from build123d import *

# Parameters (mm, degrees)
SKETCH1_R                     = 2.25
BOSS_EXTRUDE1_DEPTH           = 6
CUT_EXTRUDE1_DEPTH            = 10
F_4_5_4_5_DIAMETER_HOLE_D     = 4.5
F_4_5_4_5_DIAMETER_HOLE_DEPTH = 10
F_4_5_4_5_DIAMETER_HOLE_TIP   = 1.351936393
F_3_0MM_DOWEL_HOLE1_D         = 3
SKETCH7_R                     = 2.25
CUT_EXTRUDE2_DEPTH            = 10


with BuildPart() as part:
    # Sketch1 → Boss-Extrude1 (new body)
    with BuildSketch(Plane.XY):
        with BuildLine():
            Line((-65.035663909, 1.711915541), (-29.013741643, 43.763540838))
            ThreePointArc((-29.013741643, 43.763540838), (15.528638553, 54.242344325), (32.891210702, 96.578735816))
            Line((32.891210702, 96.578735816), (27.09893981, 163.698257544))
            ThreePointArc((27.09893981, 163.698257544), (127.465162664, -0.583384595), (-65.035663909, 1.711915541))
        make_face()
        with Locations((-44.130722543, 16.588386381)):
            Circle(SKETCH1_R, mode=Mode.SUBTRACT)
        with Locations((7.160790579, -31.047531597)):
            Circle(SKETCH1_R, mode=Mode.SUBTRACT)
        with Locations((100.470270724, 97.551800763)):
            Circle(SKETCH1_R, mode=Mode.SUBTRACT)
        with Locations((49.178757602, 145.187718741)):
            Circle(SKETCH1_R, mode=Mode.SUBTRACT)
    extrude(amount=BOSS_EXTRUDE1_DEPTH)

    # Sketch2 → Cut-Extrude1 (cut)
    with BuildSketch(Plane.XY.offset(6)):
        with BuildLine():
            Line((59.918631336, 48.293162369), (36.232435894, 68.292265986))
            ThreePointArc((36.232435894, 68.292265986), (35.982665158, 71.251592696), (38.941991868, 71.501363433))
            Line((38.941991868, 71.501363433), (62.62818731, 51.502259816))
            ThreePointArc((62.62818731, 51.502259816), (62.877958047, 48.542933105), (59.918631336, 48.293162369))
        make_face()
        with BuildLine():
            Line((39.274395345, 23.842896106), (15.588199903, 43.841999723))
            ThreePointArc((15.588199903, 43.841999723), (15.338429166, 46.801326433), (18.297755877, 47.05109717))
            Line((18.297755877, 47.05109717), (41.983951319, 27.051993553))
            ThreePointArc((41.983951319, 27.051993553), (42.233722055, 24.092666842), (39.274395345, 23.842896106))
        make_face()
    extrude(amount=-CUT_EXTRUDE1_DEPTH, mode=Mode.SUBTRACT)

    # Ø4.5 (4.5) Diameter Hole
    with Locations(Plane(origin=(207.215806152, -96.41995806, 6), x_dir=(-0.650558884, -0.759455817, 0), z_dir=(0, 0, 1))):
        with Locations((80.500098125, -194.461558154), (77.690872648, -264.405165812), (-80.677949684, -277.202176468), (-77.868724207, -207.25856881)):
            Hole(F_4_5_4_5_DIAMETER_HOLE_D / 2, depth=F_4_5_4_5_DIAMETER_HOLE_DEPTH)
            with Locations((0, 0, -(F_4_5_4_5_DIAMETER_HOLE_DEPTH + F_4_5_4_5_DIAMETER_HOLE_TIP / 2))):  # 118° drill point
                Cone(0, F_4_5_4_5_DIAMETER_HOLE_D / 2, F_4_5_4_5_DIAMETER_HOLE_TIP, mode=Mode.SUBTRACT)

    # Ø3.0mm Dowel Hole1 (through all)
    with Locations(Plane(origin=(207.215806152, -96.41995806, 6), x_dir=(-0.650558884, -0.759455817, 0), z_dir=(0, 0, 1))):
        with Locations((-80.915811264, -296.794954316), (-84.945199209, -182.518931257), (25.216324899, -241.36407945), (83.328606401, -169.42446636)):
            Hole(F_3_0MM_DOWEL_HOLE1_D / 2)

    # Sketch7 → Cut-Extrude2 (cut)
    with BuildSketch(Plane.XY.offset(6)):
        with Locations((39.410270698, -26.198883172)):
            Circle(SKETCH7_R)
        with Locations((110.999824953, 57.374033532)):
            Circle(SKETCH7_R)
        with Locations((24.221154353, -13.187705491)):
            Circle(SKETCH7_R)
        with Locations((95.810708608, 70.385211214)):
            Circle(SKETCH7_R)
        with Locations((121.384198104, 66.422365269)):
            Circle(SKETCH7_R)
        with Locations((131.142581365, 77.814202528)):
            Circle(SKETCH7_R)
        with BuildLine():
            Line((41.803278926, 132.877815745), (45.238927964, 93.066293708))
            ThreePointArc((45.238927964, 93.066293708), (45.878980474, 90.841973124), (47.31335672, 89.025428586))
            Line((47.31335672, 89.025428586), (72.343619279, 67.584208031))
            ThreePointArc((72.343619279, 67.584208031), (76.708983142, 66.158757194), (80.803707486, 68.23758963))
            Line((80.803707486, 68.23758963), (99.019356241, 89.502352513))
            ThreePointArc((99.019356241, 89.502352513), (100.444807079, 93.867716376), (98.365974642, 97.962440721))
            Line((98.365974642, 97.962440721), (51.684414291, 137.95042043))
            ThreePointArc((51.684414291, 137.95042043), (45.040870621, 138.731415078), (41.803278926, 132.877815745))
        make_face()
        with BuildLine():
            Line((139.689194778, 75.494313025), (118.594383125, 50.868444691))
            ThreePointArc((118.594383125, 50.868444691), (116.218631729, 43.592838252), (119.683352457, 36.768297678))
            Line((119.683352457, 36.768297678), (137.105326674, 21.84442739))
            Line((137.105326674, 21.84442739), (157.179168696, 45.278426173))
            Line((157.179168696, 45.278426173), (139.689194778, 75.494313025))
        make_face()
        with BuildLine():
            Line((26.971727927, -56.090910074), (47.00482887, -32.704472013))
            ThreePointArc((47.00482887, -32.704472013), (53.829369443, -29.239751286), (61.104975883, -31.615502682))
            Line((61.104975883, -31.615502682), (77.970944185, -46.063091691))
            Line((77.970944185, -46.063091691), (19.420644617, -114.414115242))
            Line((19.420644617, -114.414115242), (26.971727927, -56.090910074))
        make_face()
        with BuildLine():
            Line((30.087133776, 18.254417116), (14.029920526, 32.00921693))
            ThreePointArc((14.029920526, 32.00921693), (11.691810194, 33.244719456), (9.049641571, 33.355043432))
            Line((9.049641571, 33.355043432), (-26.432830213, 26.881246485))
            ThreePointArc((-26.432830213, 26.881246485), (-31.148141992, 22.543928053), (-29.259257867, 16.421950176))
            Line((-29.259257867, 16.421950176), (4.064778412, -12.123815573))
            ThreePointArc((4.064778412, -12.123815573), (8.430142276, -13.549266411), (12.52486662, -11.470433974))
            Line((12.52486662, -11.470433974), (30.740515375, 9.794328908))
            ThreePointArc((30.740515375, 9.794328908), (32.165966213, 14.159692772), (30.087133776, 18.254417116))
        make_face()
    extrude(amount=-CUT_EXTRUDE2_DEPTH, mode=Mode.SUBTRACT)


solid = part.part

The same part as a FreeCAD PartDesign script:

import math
import FreeCAD as App
import Part
import Sketcher
Q = App.Units.Quantity

doc = App.newDocument("Part")
body = doc.addObject("PartDesign::Body", "Body")

sketch1 = body.newObject("Sketcher::SketchObject", "Sketch")
sketch1.AttachmentSupport = (doc.getObject("XY_Plane"), [""])
sketch1.MapMode = "FlatFace"
sketch1.addGeometry(Part.LineSegment(App.Vector(-29, 43.8, 0), App.Vector(-65, 1.7, 0)), False)
sketch1.addGeometry(Part.ArcOfCircle(Part.Circle(App.Vector(31.8, 53.8, 0), App.Vector(0, 0, 1), 110), math.radians(-152), math.radians(92)), False)
sketch1.addGeometry(Part.LineSegment(App.Vector(27.1, 163.7, 0), App.Vector(32.9, 96.6, 0)), False)
sketch1.addGeometry(Part.ArcOfCircle(Part.Circle(App.Vector(-16.9, 92.3, 0), App.Vector(0, 0, 1), 50), math.radians(-104), math.radians(5)), False)
sketch1.addGeometry(Part.Circle(App.Vector(7.2, -31, 0), App.Vector(0, 0, 1), 2.2), False)
sketch1.addGeometry(Part.Circle(App.Vector(-44.1, 16.6, 0), App.Vector(0, 0, 1), 2.2), False)
sketch1.addGeometry(Part.Circle(App.Vector(100.5, 97.6, 0), App.Vector(0, 0, 1), 2.2), False)
sketch1.addGeometry(Part.Circle(App.Vector(49.2, 145.2, 0), App.Vector(0, 0, 1), 2.2), False)
sketch1.addConstraint(Sketcher.Constraint("Coincident", 0, 2, 1, 1))
sketch1.addConstraint(Sketcher.Constraint("Coincident", 1, 2, 2, 1))
sketch1.addConstraint(Sketcher.Constraint("Tangent", 2, 2, 3, 2))
sketch1.addConstraint(Sketcher.Constraint("Coincident", 3, 1, 0, 1))
sketch1.addConstraint(Sketcher.Constraint("Equal", 4, 5))
sketch1.addConstraint(Sketcher.Constraint("Equal", 5, 6))
sketch1.addConstraint(Sketcher.Constraint("Equal", 6, 7))
sketch1.addConstraint(Sketcher.Constraint("Radius", 1, Q("110 mm")))
sketch1.addConstraint(Sketcher.Constraint("Radius", 3, Q("50 mm")))
sketch1.addConstraint(Sketcher.Constraint("Diameter", 4, Q("4.5 mm")))
sketch1.addConstraint(Sketcher.Constraint("DistanceY", -1, 1, 6, 3, Q("97.551801 mm")))
sketch1.addConstraint(Sketcher.Constraint("DistanceY", 5, 3, 1, 3, Q("37.212501 mm")))
sketch1.addConstraint(Sketcher.Constraint("DistanceX", 3, 1, 3, 3, Q("12.090102 mm")))
sketch1.addConstraint(Sketcher.Constraint("Distance", 2, Q("67.368988 mm")))
sketch1.addConstraint(Sketcher.Constraint("DistanceX", -1, 1, 1, 3, Q("31.849521 mm")))
sketch1.addConstraint(Sketcher.Constraint("DistanceX", 3, 3, -1, 1, Q("16.92364 mm")))
sketch1.addConstraint(Sketcher.Constraint("DistanceY", -1, 1, 3, 3, Q("92.279821 mm")))
sketch1.addConstraint(Sketcher.Constraint("DistanceX", -1, 1, 4, 3, Q("7.160791 mm")))
sketch1.addConstraint(Sketcher.Constraint("DistanceY", 4, 3, -1, 1, Q("31.047532 mm")))
sketch1.addConstraint(Sketcher.Constraint("DistanceX", -1, 1, 6, 3, Q("100.470271 mm")))
sketch1.addConstraint(Sketcher.Constraint("DistanceY", -1, 1, 7, 3, Q("145.187719 mm")))
sketch1.addConstraint(Sketcher.Constraint("DistanceX", -1, 1, 1, 2, Q("27.09894 mm")))
sketch1.addConstraint(Sketcher.Constraint("DistanceX", 5, 3, 7, 3, Q("93.30948 mm")))
sketch1.addConstraint(Sketcher.Constraint("DistanceX", 0, 2, 5, 3, Q("20.904941 mm")))
sketch1.addConstraint(Sketcher.Constraint("DistanceY", 0, 2, 5, 3, Q("14.876471 mm")))
pad1 = body.newObject("PartDesign::Pad", "Pad")
pad1.Profile = sketch1
pad1.Length = 6

sketch2 = body.newObject("Sketcher::SketchObject", "Sketch001")
sketch2.AttachmentSupport = (doc.getObject("XY_Plane"), [""])
sketch2.MapMode = "FlatFace"
sketch2.AttachmentOffset = App.Placement(App.Vector(0, 0, 6), App.Rotation())
sketch2.addGeometry(Part.LineSegment(App.Vector(36.2, 68.3, 0), App.Vector(59.9, 48.3, 0)), False)
sketch2.addGeometry(Part.ArcOfCircle(Part.Circle(App.Vector(61.3, 49.9, 0), App.Vector(0, 0, 1), 2.1), math.radians(-130), math.radians(50)), False)
sketch2.addGeometry(Part.LineSegment(App.Vector(62.6, 51.5, 0), App.Vector(38.9, 71.5, 0)), False)
sketch2.addGeometry(Part.ArcOfCircle(Part.Circle(App.Vector(37.6, 69.9, 0), App.Vector(0, 0, 1), 2.1), math.radians(50), math.radians(230)), False)
sketch2.addGeometry(Part.LineSegment(App.Vector(15.6, 43.8, 0), App.Vector(39.3, 23.8, 0)), False)
sketch2.addGeometry(Part.ArcOfCircle(Part.Circle(App.Vector(40.6, 25.4, 0), App.Vector(0, 0, 1), 2.1), math.radians(-130), math.radians(50)), False)
sketch2.addGeometry(Part.LineSegment(App.Vector(42, 27.1, 0), App.Vector(18.3, 47.1, 0)), False)
sketch2.addGeometry(Part.ArcOfCircle(Part.Circle(App.Vector(16.9, 45.4, 0), App.Vector(0, 0, 1), 2.1), math.radians(50), math.radians(230)), False)
sketch2.addConstraint(Sketcher.Constraint("Tangent", 0, 2, 1, 1))
sketch2.addConstraint(Sketcher.Constraint("Tangent", 1, 2, 2, 1))
sketch2.addConstraint(Sketcher.Constraint("Tangent", 2, 2, 3, 1))
sketch2.addConstraint(Sketcher.Constraint("Tangent", 3, 2, 0, 1))
sketch2.addConstraint(Sketcher.Constraint("Tangent", 4, 2, 5, 1))
sketch2.addConstraint(Sketcher.Constraint("Tangent", 5, 2, 6, 1))
sketch2.addConstraint(Sketcher.Constraint("Tangent", 6, 2, 7, 1))
sketch2.addConstraint(Sketcher.Constraint("Tangent", 7, 2, 4, 1))
sketch2.addConstraint(Sketcher.Constraint("Equal", 1, 3))
sketch2.addConstraint(Sketcher.Constraint("Equal", 3, 5))
sketch2.addConstraint(Sketcher.Constraint("Equal", 5, 7))
sketch2.addConstraint(Sketcher.Constraint("Parallel", 2, 4))
sketch2.addConstraint(Sketcher.Constraint("Equal", 2, 4))
sketch2.addConstraint(Sketcher.Constraint("Radius", 1, Q("2.1 mm")))
sketch2.addConstraint(Sketcher.Constraint("Distance", 0, Q("31 mm")))
sketch2.addConstraint(Sketcher.Constraint("DistanceY", -1, 1, 7, 2, Q("43.842 mm")))
sketch2.addConstraint(Sketcher.Constraint("DistanceX", -1, 1, 7, 2, Q("15.5882 mm")))
sketch2.addConstraint(Sketcher.Constraint("DistanceY", 0, 2, 2, 2, Q("23.208201 mm")))
sketch2.addConstraint(Sketcher.Constraint("DistanceX", -1, 1, 1, 3, Q("61.273409 mm")))
sketch2.addConstraint(Sketcher.Constraint("DistanceY", -1, 1, 1, 3, Q("49.897711 mm")))
pocket1 = body.newObject("PartDesign::Pocket", "Pocket")
pocket1.Profile = sketch2
pocket1.Length = 10

sketch3 = body.newObject("Sketcher::SketchObject", "Sketch002")
sketch3.AttachmentSupport = (doc.getObject("XY_Plane"), [""])
sketch3.MapMode = "FlatFace"
sketch3.AttachmentOffset = App.Placement(App.Vector(0, 0, 6), App.Rotation())
sketch3.addGeometry(Part.Circle(App.Vector(7.2, -31, 0), App.Vector(0, 0, 1), 2.2), False)
sketch3.addGeometry(Part.Circle(App.Vector(-44.1, 16.6, 0), App.Vector(0, 0, 1), 2.2), False)
sketch3.addGeometry(Part.Circle(App.Vector(49.2, 145.2, 0), App.Vector(0, 0, 1), 2.2), False)
sketch3.addGeometry(Part.Circle(App.Vector(100.5, 97.6, 0), App.Vector(0, 0, 1), 2.2), False)
sketch3.addConstraint(Sketcher.Constraint("Equal", 0, 1))
sketch3.addConstraint(Sketcher.Constraint("Equal", 1, 2))
sketch3.addConstraint(Sketcher.Constraint("Equal", 2, 3))
sketch3.addConstraint(Sketcher.Constraint("Diameter", 0, Q("4.5 mm")))
sketch3.addConstraint(Sketcher.Constraint("DistanceY", -1, 1, 3, 3, Q("97.551801 mm")))
sketch3.addConstraint(Sketcher.Constraint("DistanceX", -1, 1, 0, 3, Q("7.160791 mm")))
sketch3.addConstraint(Sketcher.Constraint("DistanceY", 0, 3, -1, 1, Q("31.047532 mm")))
sketch3.addConstraint(Sketcher.Constraint("DistanceY", -1, 1, 2, 3, Q("145.187719 mm")))
sketch3.addConstraint(Sketcher.Constraint("DistanceX", -1, 1, 3, 3, Q("100.470271 mm")))
sketch3.addConstraint(Sketcher.Constraint("DistanceX", 1, 3, 2, 3, Q("93.30948 mm")))
sketch3.addConstraint(Sketcher.Constraint("DistanceX", 1, 3, -1, 1, Q("44.130723 mm")))
sketch3.addConstraint(Sketcher.Constraint("DistanceY", -1, 1, 1, 3, Q("16.588386 mm")))
doc.recompute()
hole = body.newObject("PartDesign::Hole", "Hole")
hole.Profile = sketch3
hole.ThreadType = "None"
hole.Diameter = 4.5
hole.DepthType = "Dimension"
hole.Depth = 10
hole.DrillPoint = "Angled"
hole.DrillPointAngle = 118

sketch4 = body.newObject("Sketcher::SketchObject", "Sketch003")
sketch4.AttachmentSupport = (doc.getObject("XY_Plane"), [""])
sketch4.MapMode = "FlatFace"
sketch4.AttachmentOffset = App.Placement(App.Vector(0, 0, 6), App.Rotation())
sketch4.addGeometry(Part.Circle(App.Vector(34.5, 158.1, 0), App.Vector(0, 0, 1), 1.5), False)
sketch4.addGeometry(Part.Circle(App.Vector(123.9, 86.8, 0), App.Vector(0, 0, 1), 1.5), False)
sketch4.addGeometry(Part.Circle(App.Vector(7.5, 41.5, 0), App.Vector(0, 0, 1), 1.5), False)
sketch4.addGeometry(Part.Circle(App.Vector(24.3, -49.5, 0), App.Vector(0, 0, 1), 1.5), False)
sketch4.addConstraint(Sketcher.Constraint("Equal", 0, 1))
sketch4.addConstraint(Sketcher.Constraint("Equal", 1, 2))
sketch4.addConstraint(Sketcher.Constraint("Equal", 2, 3))
sketch4.addConstraint(Sketcher.Constraint("Diameter", 0, Q("3 mm")))
sketch4.addConstraint(Sketcher.Constraint("DistanceX", -1, 1, 0, 3, Q("34.453651 mm")))
sketch4.addConstraint(Sketcher.Constraint("DistanceY", -1, 1, 0, 3, Q("158.11462 mm")))
sketch4.addConstraint(Sketcher.Constraint("DistanceY", -1, 1, 1, 3, Q("86.83148 mm")))
sketch4.addConstraint(Sketcher.Constraint("DistanceY", 3, 3, -1, 1, Q("49.483761 mm")))
sketch4.addConstraint(Sketcher.Constraint("DistanceX", 2, 3, 1, 3, Q("116.356848 mm")))
sketch4.addConstraint(Sketcher.Constraint("DistanceX", 3, 3, 1, 3, Q("99.527352 mm")))
sketch4.addConstraint(Sketcher.Constraint("DistanceX", -1, 1, 1, 3, Q("123.862596 mm")))
sketch4.addConstraint(Sketcher.Constraint("DistanceY", -1, 1, 2, 3, Q("41.450904 mm")))
doc.recompute()
hole2 = body.newObject("PartDesign::Hole", "Hole001")
hole2.Profile = sketch4
hole2.ThreadType = "None"
hole2.Diameter = 3
hole2.DepthType = "ThroughAll"

sketch5 = body.newObject("Sketcher::SketchObject", "Sketch004")
sketch5.AttachmentSupport = (doc.getObject("XY_Plane"), [""])
sketch5.MapMode = "FlatFace"
sketch5.AttachmentOffset = App.Placement(App.Vector(0, 0, 6), App.Rotation())
sketch5.addGeometry(Part.Circle(App.Vector(39.4, -26.2, 0), App.Vector(0, 0, 1), 2.2), False)
sketch5.addGeometry(Part.Circle(App.Vector(111, 57.4, 0), App.Vector(0, 0, 1), 2.2), False)
sketch5.addGeometry(Part.Circle(App.Vector(24.2, -13.2, 0), App.Vector(0, 0, 1), 2.2), False)
sketch5.addGeometry(Part.Circle(App.Vector(95.8, 70.4, 0), App.Vector(0, 0, 1), 2.2), False)
sketch5.addGeometry(Part.Circle(App.Vector(121.4, 66.4, 0), App.Vector(0, 0, 1), 2.2), False)
sketch5.addGeometry(Part.Circle(App.Vector(131.1, 77.8, 0), App.Vector(0, 0, 1), 2.2), False)
sketch5.addGeometry(Part.LineSegment(App.Vector(41.8, 132.9, 0), App.Vector(45.2, 93.1, 0)), False)
sketch5.addGeometry(Part.ArcOfCircle(Part.Circle(App.Vector(51.2, 93.6, 0), App.Vector(0, 0, 1), 6), math.radians(-175), math.radians(-131)), False)
sketch5.addGeometry(Part.LineSegment(App.Vector(47.3, 89, 0), App.Vector(72.3, 67.6, 0)), False)
sketch5.addGeometry(Part.ArcOfCircle(Part.Circle(App.Vector(76.2, 72.1, 0), App.Vector(0, 0, 1), 6), math.radians(-131), math.radians(-41)), False)
sketch5.addGeometry(Part.LineSegment(App.Vector(80.8, 68.2, 0), App.Vector(99, 89.5, 0)), False)
sketch5.addGeometry(Part.ArcOfCircle(Part.Circle(App.Vector(94.5, 93.4, 0), App.Vector(0, 0, 1), 6), math.radians(-41), math.radians(49)), False)
sketch5.addGeometry(Part.LineSegment(App.Vector(98.4, 98, 0), App.Vector(51.7, 138, 0)), False)
sketch5.addGeometry(Part.ArcOfCircle(Part.Circle(App.Vector(47.8, 133.4, 0), App.Vector(0, 0, 1), 6), math.radians(49), math.radians(185)), False)
sketch5.addGeometry(Part.LineSegment(App.Vector(139.7, 75.5, 0), App.Vector(118.6, 50.9, 0)), False)
sketch5.addGeometry(Part.ArcOfCircle(Part.Circle(App.Vector(126.2, 44.4, 0), App.Vector(0, 0, 1), 10), math.radians(139), math.radians(229)), False)
sketch5.addGeometry(Part.LineSegment(App.Vector(119.7, 36.8, 0), App.Vector(137.1, 21.8, 0)), False)
sketch5.addGeometry(Part.LineSegment(App.Vector(137.1, 21.8, 0), App.Vector(157.2, 45.3, 0)), False)
sketch5.addGeometry(Part.LineSegment(App.Vector(157.2, 45.3, 0), App.Vector(139.7, 75.5, 0)), False)
sketch5.addGeometry(Part.LineSegment(App.Vector(47, -32.7, 0), App.Vector(27, -56.1, 0)), False)
sketch5.addGeometry(Part.LineSegment(App.Vector(27, -56.1, 0), App.Vector(19.4, -114.4, 0)), False)
sketch5.addGeometry(Part.LineSegment(App.Vector(19.4, -114.4, 0), App.Vector(78, -46.1, 0)), False)
sketch5.addGeometry(Part.LineSegment(App.Vector(78, -46.1, 0), App.Vector(61.1, -31.6, 0)), False)
sketch5.addGeometry(Part.ArcOfCircle(Part.Circle(App.Vector(54.6, -39.2, 0), App.Vector(0, 0, 1), 10), math.radians(49), math.radians(139)), False)
sketch5.addGeometry(Part.LineSegment(App.Vector(30.1, 18.3, 0), App.Vector(14, 32, 0)), False)
sketch5.addGeometry(Part.ArcOfCircle(Part.Circle(App.Vector(10.1, 27.5, 0), App.Vector(0, 0, 1), 6), math.radians(49), math.radians(100)), False)
sketch5.addGeometry(Part.LineSegment(App.Vector(9, 33.4, 0), App.Vector(-26.4, 26.9, 0)), False)
sketch5.addGeometry(Part.ArcOfCircle(Part.Circle(App.Vector(-25.4, 21, 0), App.Vector(0, 0, 1), 6), math.radians(100), math.radians(229)), False)
sketch5.addGeometry(Part.LineSegment(App.Vector(-29.3, 16.4, 0), App.Vector(4.1, -12.1, 0)), False)
sketch5.addGeometry(Part.ArcOfCircle(Part.Circle(App.Vector(8, -7.6, 0), App.Vector(0, 0, 1), 6), math.radians(-131), math.radians(-41)), False)
sketch5.addGeometry(Part.LineSegment(App.Vector(12.5, -11.5, 0), App.Vector(30.7, 9.8, 0)), False)
sketch5.addGeometry(Part.ArcOfCircle(Part.Circle(App.Vector(26.2, 13.7, 0), App.Vector(0, 0, 1), 6), math.radians(-41), math.radians(49)), False)
sketch5.addConstraint(Sketcher.Constraint("Tangent", 6, 2, 7, 1))
sketch5.addConstraint(Sketcher.Constraint("Tangent", 7, 2, 8, 1))
sketch5.addConstraint(Sketcher.Constraint("Tangent", 8, 2, 9, 1))
sketch5.addConstraint(Sketcher.Constraint("Tangent", 9, 2, 10, 1))
sketch5.addConstraint(Sketcher.Constraint("Tangent", 10, 2, 11, 1))
sketch5.addConstraint(Sketcher.Constraint("Tangent", 11, 2, 12, 1))
sketch5.addConstraint(Sketcher.Constraint("Tangent", 12, 2, 13, 1))
sketch5.addConstraint(Sketcher.Constraint("Tangent", 13, 2, 6, 1))
sketch5.addConstraint(Sketcher.Constraint("Tangent", 14, 2, 15, 1))
sketch5.addConstraint(Sketcher.Constraint("Tangent", 15, 2, 16, 1))
sketch5.addConstraint(Sketcher.Constraint("Coincident", 16, 2, 17, 1))
sketch5.addConstraint(Sketcher.Constraint("Coincident", 17, 2, 18, 1))
sketch5.addConstraint(Sketcher.Constraint("Coincident", 18, 2, 14, 1))
sketch5.addConstraint(Sketcher.Constraint("Coincident", 19, 2, 20, 1))
sketch5.addConstraint(Sketcher.Constraint("Coincident", 20, 2, 21, 1))
sketch5.addConstraint(Sketcher.Constraint("Coincident", 21, 2, 22, 1))
sketch5.addConstraint(Sketcher.Constraint("Tangent", 22, 2, 23, 1))
sketch5.addConstraint(Sketcher.Constraint("Tangent", 23, 2, 19, 1))
sketch5.addConstraint(Sketcher.Constraint("Tangent", 24, 2, 25, 1))
sketch5.addConstraint(Sketcher.Constraint("Tangent", 25, 2, 26, 1))
sketch5.addConstraint(Sketcher.Constraint("Tangent", 26, 2, 27, 1))
sketch5.addConstraint(Sketcher.Constraint("Tangent", 27, 2, 28, 1))
sketch5.addConstraint(Sketcher.Constraint("Tangent", 28, 2, 29, 1))
sketch5.addConstraint(Sketcher.Constraint("Tangent", 29, 2, 30, 1))
sketch5.addConstraint(Sketcher.Constraint("Tangent", 30, 2, 31, 1))
sketch5.addConstraint(Sketcher.Constraint("Tangent", 31, 2, 24, 1))
sketch5.addConstraint(Sketcher.Constraint("Equal", 0, 1))
sketch5.addConstraint(Sketcher.Constraint("Equal", 1, 2))
sketch5.addConstraint(Sketcher.Constraint("Equal", 2, 3))
sketch5.addConstraint(Sketcher.Constraint("Equal", 3, 4))
sketch5.addConstraint(Sketcher.Constraint("Equal", 4, 5))
sketch5.addConstraint(Sketcher.Constraint("Equal", 7, 9))
sketch5.addConstraint(Sketcher.Constraint("Equal", 9, 11))
sketch5.addConstraint(Sketcher.Constraint("Equal", 11, 13))
sketch5.addConstraint(Sketcher.Constraint("Equal", 15, 23))
sketch5.addConstraint(Sketcher.Constraint("Equal", 13, 25))
sketch5.addConstraint(Sketcher.Constraint("Equal", 25, 27))
sketch5.addConstraint(Sketcher.Constraint("Equal", 27, 29))
sketch5.addConstraint(Sketcher.Constraint("Equal", 29, 31))
sketch5.addConstraint(Sketcher.Constraint("Perpendicular", 8, 10))
sketch5.addConstraint(Sketcher.Constraint("Perpendicular", 10, 12))
sketch5.addConstraint(Sketcher.Constraint("Perpendicular", 12, 14))
sketch5.addConstraint(Sketcher.Constraint("Perpendicular", 14, 16))
sketch5.addConstraint(Sketcher.Constraint("Perpendicular", 16, 17))
sketch5.addConstraint(Sketcher.Constraint("Parallel", 17, 19))
sketch5.addConstraint(Sketcher.Constraint("Parallel", 19, 21))
sketch5.addConstraint(Sketcher.Constraint("Perpendicular", 21, 22))
sketch5.addConstraint(Sketcher.Constraint("Parallel", 22, 24))
sketch5.addConstraint(Sketcher.Constraint("Parallel", 24, 28))
sketch5.addConstraint(Sketcher.Constraint("Perpendicular", 28, 30))
sketch5.addConstraint(Sketcher.Constraint("Equal", 10, 30))
sketch5.addConstraint(Sketcher.Constraint("Radius", 7, Q("6 mm")))
sketch5.addConstraint(Sketcher.Constraint("Radius", 15, Q("10 mm")))
sketch5.addConstraint(Sketcher.Constraint("Diameter", 0, Q("4.5 mm")))
sketch5.addConstraint(Sketcher.Constraint("Distance", 10, Q("28 mm")))
sketch5.addConstraint(Sketcher.Constraint("Distance", 21, Q("90 mm")))
sketch5.addConstraint(Sketcher.Constraint("DistanceX", 7, 3, 3, 3, Q("44.593999 mm")))
sketch5.addConstraint(Sketcher.Constraint("DistanceX", 9, 2, 3, 3, Q("15.007001 mm")))
sketch5.addConstraint(Sketcher.Constraint("DistanceY", 16, 2, 17, 2, Q("23.433999 mm")))
sketch5.addConstraint(Sketcher.Constraint("DistanceX", -1, 1, 4, 3, Q("121.384198 mm")))
sketch5.addConstraint(Sketcher.Constraint("DistanceY", 4, 3, 7, 3, Q("27.159798 mm")))
sketch5.addConstraint(Sketcher.Constraint("DistanceY", 31, 3, 25, 3, Q("13.7548 mm")))
sketch5.addConstraint(Sketcher.Constraint("DistanceX", 14, 2, 5, 3, Q("12.548198 mm")))
sketch5.addConstraint(Sketcher.Constraint("DistanceX", 1, 3, 16, 2, Q("26.105502 mm")))
sketch5.addConstraint(Sketcher.Constraint("DistanceX", 19, 2, 23, 2, Q("20.033101 mm")))
sketch5.addConstraint(Sketcher.Constraint("DistanceX", 27, 2, 25, 2, Q("38.308899 mm")))
sketch5.addConstraint(Sketcher.Constraint("Distance", 6, Q("39.959492 mm")))
sketch5.addConstraint(Sketcher.Constraint("Distance", 12, Q("61.467118 mm")))
sketch5.addConstraint(Sketcher.Constraint("Distance", 20, Q("58.809992 mm")))
sketch5.addConstraint(Sketcher.Constraint("DistanceX", -1, 1, 0, 3, Q("39.410271 mm")))
sketch5.addConstraint(Sketcher.Constraint("DistanceX", -1, 1, 3, 3, Q("95.810709 mm")))
sketch5.addConstraint(Sketcher.Constraint("DistanceY", -1, 1, 3, 3, Q("70.385211 mm")))
sketch5.addConstraint(Sketcher.Constraint("DistanceX", -1, 1, 5, 3, Q("131.142581 mm")))
sketch5.addConstraint(Sketcher.Constraint("DistanceY", 23, 3, -1, 1, Q("39.210061 mm")))
sketch5.addConstraint(Sketcher.Constraint("DistanceX", -1, 1, 29, 3, Q("7.968132 mm")))
sketch5.addConstraint(Sketcher.Constraint("DistanceY", 29, 3, -1, 1, Q("7.567081 mm")))
sketch5.addConstraint(Sketcher.Constraint("DistanceY", -1, 1, 7, 2, Q("89.025429 mm")))
sketch5.addConstraint(Sketcher.Constraint("DistanceX", -1, 1, 17, 2, Q("157.179169 mm")))
sketch5.addConstraint(Sketcher.Constraint("DistanceX", -1, 1, 23, 2, Q("47.004829 mm")))
sketch5.addConstraint(Sketcher.Constraint("DistanceX", 2, 3, 1, 3, Q("86.778671 mm")))
sketch5.addConstraint(Sketcher.Constraint("DistanceY", 2, 3, 1, 3, Q("70.561739 mm")))
sketch5.addConstraint(Sketcher.Constraint("DistanceY", 1, 3, 4, 3, Q("9.048332 mm")))
sketch5.addConstraint(Sketcher.Constraint("DistanceY", 0, 3, 4, 3, Q("92.621248 mm")))
sketch5.addConstraint(Sketcher.Constraint("DistanceY", 1, 3, 5, 3, Q("20.440169 mm")))
sketch5.addConstraint(Sketcher.Constraint("DistanceY", 15, 3, 4, 3, Q("22.059509 mm")))
sketch5.addConstraint(Sketcher.Constraint("DistanceY", 18, 2, 5, 3, Q("2.31989 mm")))
pocket2 = body.newObject("PartDesign::Pocket", "Pocket001")
pocket2.Profile = sketch5
pocket2.Length = 10

doc.recompute()
